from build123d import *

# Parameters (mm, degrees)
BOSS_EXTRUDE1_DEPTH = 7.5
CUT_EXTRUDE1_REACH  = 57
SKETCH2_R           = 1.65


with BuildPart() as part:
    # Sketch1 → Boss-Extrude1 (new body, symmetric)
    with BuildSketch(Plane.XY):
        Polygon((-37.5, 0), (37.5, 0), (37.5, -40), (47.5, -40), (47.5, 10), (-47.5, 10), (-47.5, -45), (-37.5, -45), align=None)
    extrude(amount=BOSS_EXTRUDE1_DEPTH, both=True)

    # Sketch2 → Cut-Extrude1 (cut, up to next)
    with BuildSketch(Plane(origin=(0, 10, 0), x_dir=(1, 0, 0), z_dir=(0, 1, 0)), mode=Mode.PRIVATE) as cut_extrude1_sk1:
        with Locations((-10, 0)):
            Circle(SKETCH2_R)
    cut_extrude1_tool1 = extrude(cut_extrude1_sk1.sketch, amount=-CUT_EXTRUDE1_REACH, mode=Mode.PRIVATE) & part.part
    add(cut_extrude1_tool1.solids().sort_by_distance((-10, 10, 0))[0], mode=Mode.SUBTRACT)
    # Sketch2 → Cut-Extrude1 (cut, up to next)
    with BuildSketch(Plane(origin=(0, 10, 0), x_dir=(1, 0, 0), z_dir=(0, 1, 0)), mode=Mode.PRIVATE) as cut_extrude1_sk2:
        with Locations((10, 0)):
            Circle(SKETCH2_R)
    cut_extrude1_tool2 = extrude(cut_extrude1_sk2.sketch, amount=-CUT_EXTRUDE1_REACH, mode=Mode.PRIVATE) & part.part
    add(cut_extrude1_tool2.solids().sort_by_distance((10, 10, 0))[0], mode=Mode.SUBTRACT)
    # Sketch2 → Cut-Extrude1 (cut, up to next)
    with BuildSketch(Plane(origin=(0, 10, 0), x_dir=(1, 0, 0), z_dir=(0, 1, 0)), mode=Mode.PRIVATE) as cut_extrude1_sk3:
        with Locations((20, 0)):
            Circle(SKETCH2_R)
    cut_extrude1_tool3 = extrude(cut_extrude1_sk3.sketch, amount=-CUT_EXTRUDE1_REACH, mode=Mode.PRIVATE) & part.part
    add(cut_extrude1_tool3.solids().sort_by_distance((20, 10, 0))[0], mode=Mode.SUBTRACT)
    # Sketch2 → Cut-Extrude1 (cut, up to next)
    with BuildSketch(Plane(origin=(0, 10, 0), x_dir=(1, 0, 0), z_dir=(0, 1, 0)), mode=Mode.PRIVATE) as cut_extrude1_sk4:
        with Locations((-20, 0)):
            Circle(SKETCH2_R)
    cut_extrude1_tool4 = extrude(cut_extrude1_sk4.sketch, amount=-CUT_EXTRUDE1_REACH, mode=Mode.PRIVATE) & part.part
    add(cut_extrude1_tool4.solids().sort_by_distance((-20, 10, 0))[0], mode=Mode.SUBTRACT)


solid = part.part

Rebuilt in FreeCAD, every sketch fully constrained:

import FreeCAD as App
import Part
import Sketcher

V = App.Vector


def add_polygon(sketch, points):
    """Adds a closed chain of lines whose ends are joined by coincident constraints."""
    first, n = sketch.GeometryCount, len(points)
    for a, b in zip(points, points[1:] + points[:1]):
        sketch.addGeometry(Part.LineSegment(App.Vector(*a, 0), App.Vector(*b, 0)), False)
    for i in range(n):
        sketch.addConstraint(Sketcher.Constraint("Coincident", first + i, 2, first + (i + 1) % n, 1))

doc = App.newDocument("Part")
body = doc.addObject("PartDesign::Body", "Body")

sketch1 = body.newObject("Sketcher::SketchObject", "Sketch")
sketch1.AttachmentSupport = (doc.getObject("XY_Plane"), [""])
sketch1.MapMode = "FlatFace"
add_polygon(sketch1, [(-38, 0), (38, 0), (38, -40), (48, -40), (48, 10), (-48, 10), (-48, -45), (-38, -45)])
sketch1.addConstraint([
    Sketcher.Constraint("Horizontal", 0),
    Sketcher.Constraint("Vertical", 1),
    Sketcher.Constraint("Horizontal", 2),
    Sketcher.Constraint("Vertical", 3),
    Sketcher.Constraint("Horizontal", 4),
    Sketcher.Constraint("Vertical", 5),
    Sketcher.Constraint("Horizontal", 6),
    Sketcher.Constraint("Vertical", 7),
    Sketcher.Constraint("Symmetric", 0, 2, 7, 2, -1, 1),
    Sketcher.Constraint("Equal", 2, 6),
    Sketcher.Constraint("DistanceX", 0, 1, 0, 2, 75.0),
    Sketcher.Constraint("DistanceX", 2, 1, 2, 2, 10.0),
    Sketcher.Constraint("DistanceY", 1, 2, 1, 1, 40.0),
    Sketcher.Constraint("DistanceY", 3, 1, 3, 2, 50.0),
    Sketcher.Constraint("DistanceY", 5, 2, 5, 1, 55.0),
])
pad1 = body.newObject("PartDesign::Pad", "Pad")
pad1.Profile = sketch1
pad1.Length = 15
pad1.Midplane = True

sketch2 = body.newObject("Sketcher::SketchObject", "Sketch001")
sketch2.AttachmentSupport = (doc.getObject("XZ_Plane"), [""])
sketch2.MapMode = "FlatFace"
sketch2.AttachmentOffset = App.Placement(V(0, 0, -10), App.Rotation())
sketch2.addGeometry(Part.Circle(V(-10, 0, 0), V(0, 0, 1), 1.6), False)
sketch2.addConstraint([
    Sketcher.Constraint("PointOnObject", 0, 3, -1),
    Sketcher.Constraint("Diameter", 0, 3.3),
    Sketcher.Constraint("DistanceX", 0, 3, -1, 1, 10.0),
])
pocket1 = body.newObject("PartDesign::Pocket", "Pocket")
pocket1.Profile = sketch2
pocket1.Type = "UpToFirst"
pocket1.Reversed = True

sketch3 = body.newObject("Sketcher::SketchObject", "Sketch002")
sketch3.AttachmentSupport = (doc.getObject("XZ_Plane"), [""])
sketch3.MapMode = "FlatFace"
sketch3.AttachmentOffset = App.Placement(V(0, 0, -10), App.Rotation())
sketch3.addGeometry(Part.Circle(V(10, 0, 0), V(0, 0, 1), 1.6), False)
sketch3.addConstraint([
    Sketcher.Constraint("PointOnObject", 0, 3, -1),
    Sketcher.Constraint("Diameter", 0, 3.3),
    Sketcher.Constraint("DistanceX", -1, 1, 0, 3, 10.0),
])
pocket2 = body.newObject("PartDesign::Pocket", "Pocket001")
pocket2.Profile = sketch3
pocket2.Type = "UpToFirst"
pocket2.Reversed = True

sketch4 = body.newObject("Sketcher::SketchObject", "Sketch003")
sketch4.AttachmentSupport = (doc.getObject("XZ_Plane"), [""])
sketch4.MapMode = "FlatFace"
sketch4.AttachmentOffset = App.Placement(V(0, 0, -10), App.Rotation())
sketch4.addGeometry(Part.Circle(V(20, 0, 0), V(0, 0, 1), 1.6), False)
sketch4.addConstraint([
    Sketcher.Constraint("PointOnObject", 0, 3, -1),
    Sketcher.Constraint("Diameter", 0, 3.3),
    Sketcher.Constraint("DistanceX", -1, 1, 0, 3, 20.0),
])
pocket3 = body.newObject("PartDesign::Pocket", "Pocket002")
pocket3.Profile = sketch4
pocket3.Type = "UpToFirst"
pocket3.Reversed = True

sketch5 = body.newObject("Sketcher::SketchObject", "Sketch004")
sketch5.AttachmentSupport = (doc.getObject("XZ_Plane"), [""])
sketch5.MapMode = "FlatFace"
sketch5.AttachmentOffset = App.Placement(V(0, 0, -10), App.Rotation())
sketch5.addGeometry(Part.Circle(V(-20, 0, 0), V(0, 0, 1), 1.6), False)
sketch5.addConstraint([
    Sketcher.Constraint("PointOnObject", 0, 3, -1),
    Sketcher.Constraint("Diameter", 0, 3.3),
    Sketcher.Constraint("DistanceX", 0, 3, -1, 1, 20.0),
])
pocket4 = body.newObject("PartDesign::Pocket", "Pocket003")
pocket4.Profile = sketch5
pocket4.Type = "UpToFirst"
pocket4.Reversed = True

doc.recompute()
